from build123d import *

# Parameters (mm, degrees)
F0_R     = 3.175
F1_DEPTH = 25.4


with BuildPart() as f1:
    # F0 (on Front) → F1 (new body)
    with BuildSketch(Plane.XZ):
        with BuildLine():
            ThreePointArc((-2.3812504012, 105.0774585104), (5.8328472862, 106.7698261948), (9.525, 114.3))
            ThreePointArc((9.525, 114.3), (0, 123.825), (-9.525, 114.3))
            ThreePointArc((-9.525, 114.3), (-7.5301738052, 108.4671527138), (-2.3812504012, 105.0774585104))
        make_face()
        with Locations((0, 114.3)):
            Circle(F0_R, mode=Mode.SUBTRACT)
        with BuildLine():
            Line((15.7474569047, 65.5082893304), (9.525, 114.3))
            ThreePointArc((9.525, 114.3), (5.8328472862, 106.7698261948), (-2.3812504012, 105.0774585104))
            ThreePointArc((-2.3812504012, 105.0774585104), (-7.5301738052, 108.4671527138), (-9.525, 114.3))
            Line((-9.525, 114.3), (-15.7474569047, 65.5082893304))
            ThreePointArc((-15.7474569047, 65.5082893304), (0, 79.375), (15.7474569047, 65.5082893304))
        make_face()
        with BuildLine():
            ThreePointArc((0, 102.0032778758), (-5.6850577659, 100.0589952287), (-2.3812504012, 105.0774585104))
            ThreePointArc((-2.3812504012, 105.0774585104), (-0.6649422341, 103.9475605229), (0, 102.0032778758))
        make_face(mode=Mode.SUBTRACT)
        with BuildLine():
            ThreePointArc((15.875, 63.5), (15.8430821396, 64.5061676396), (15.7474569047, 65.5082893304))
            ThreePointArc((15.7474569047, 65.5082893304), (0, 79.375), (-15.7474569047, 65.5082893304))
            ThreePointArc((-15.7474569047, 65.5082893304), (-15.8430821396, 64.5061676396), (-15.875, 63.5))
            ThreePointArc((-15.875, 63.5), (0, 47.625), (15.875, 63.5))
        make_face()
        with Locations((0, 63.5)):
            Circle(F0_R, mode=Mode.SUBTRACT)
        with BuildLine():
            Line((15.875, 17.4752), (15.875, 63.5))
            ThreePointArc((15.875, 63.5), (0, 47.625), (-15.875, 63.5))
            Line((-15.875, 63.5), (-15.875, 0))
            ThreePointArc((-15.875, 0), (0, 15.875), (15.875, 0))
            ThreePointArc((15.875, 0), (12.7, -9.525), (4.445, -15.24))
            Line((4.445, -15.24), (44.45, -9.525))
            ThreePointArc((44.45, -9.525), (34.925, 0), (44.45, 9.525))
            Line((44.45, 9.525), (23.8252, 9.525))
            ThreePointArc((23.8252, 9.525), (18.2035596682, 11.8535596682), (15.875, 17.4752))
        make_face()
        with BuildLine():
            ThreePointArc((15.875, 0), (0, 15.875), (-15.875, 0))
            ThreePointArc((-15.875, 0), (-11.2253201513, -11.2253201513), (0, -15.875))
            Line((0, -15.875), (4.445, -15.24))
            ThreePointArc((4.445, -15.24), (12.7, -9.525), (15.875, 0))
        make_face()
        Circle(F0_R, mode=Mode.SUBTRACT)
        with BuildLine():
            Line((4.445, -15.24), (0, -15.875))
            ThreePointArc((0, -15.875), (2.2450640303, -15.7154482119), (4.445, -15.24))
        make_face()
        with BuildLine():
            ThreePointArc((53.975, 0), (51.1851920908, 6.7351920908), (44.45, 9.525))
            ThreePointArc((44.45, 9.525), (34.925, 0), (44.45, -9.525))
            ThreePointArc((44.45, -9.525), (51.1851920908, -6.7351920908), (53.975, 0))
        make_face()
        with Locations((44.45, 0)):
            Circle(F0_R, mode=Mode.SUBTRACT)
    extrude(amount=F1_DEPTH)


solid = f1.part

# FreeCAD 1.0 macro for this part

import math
import FreeCAD as App
import Part
import Sketcher
from FreeCAD import Vector
Q = App.Units.Quantity

doc = App.newDocument("Part")
body = doc.addObject("PartDesign::Body", "Body")

# Sketch on XZ plane
sketch1 = body.newObject("Sketcher::SketchObject", "Sketch")
sketch1.AttachmentSupport = (doc.getObject("XZ_Plane"), [""])
sketch1.MapMode = "FlatFace"
sketch1.addGeometry(Part.ArcOfCircle(Part.Circle(Vector(0, 114.3, 0), Vector(0, 0, 1), 9.5), math.radians(0), math.radians(180)), False)
sketch1.addGeometry(Part.LineSegment(Vector(-9.5, 114.3, 0), Vector(-15.7, 65.5, 0)), False)
sketch1.addGeometry(Part.ArcOfCircle(Part.Circle(Vector(0, 63.5, 0), Vector(0, 0, 1), 15.9), math.radians(172.73), math.radians(180)), False)
sketch1.addGeometry(Part.LineSegment(Vector(-15.9, 63.5, 0), Vector(-15.9, 0, 0)), False)
sketch1.addGeometry(Part.ArcOfCircle(Part.Circle(Vector(0, 0, 0), Vector(0, 0, 1), 15.9), math.radians(180), math.radians(270)), False)
sketch1.addGeometry(Part.ArcOfCircle(Part.Circle(Vector(0, 0, 0), Vector(0, 0, 1), 15.9), math.radians(-90), math.radians(-73.74)), False)
sketch1.addGeometry(Part.LineSegment(Vector(4.4, -15.2, 0), Vector(44.5, -9.5, 0)), False)
sketch1.addGeometry(Part.ArcOfCircle(Part.Circle(Vector(44.5, 0, 0), Vector(0, 0, 1), 9.5), math.radians(-90), math.radians(90)), False)
sketch1.addGeometry(Part.LineSegment(Vector(44.5, 9.5, 0), Vector(23.8, 9.5, 0)), False)
sketch1.addGeometry(Part.ArcOfCircle(Part.Circle(Vector(23.8, 17.5, 0), Vector(0, 0, 1), 8), math.radians(180), math.radians(270)), False)
sketch1.addGeometry(Part.LineSegment(Vector(15.9, 17.5, 0), Vector(15.9, 63.5, 0)), False)
sketch1.addGeometry(Part.ArcOfCircle(Part.Circle(Vector(0, 63.5, 0), Vector(0, 0, 1), 15.9), math.radians(0), math.radians(7.27)), False)
sketch1.addGeometry(Part.LineSegment(Vector(15.7, 65.5, 0), Vector(9.5, 114.3, 0)), False)
sketch1.addGeometry(Part.Circle(Vector(0, 0, 0), Vector(0, 0, 1), 3.2), False)
sketch1.addGeometry(Part.Circle(Vector(44.5, 0, 0), Vector(0, 0, 1), 3.2), False)
sketch1.addGeometry(Part.Circle(Vector(0, 63.5, 0), Vector(0, 0, 1), 3.2), False)
sketch1.addGeometry(Part.ArcOfCircle(Part.Circle(Vector(-3.2, 102, 0), Vector(0, 0, 1), 3.2), math.radians(0), math.radians(76)), False)
sketch1.addGeometry(Part.ArcOfCircle(Part.Circle(Vector(-3.2, 102, 0), Vector(0, 0, 1), 3.2), math.radians(76), math.radians(360)), False)
sketch1.addGeometry(Part.Circle(Vector(0, 114.3, 0), Vector(0, 0, 1), 3.2), False)
sketch1.addConstraint(Sketcher.Constraint("Coincident", 0, 2, 1, 1))
sketch1.addConstraint(Sketcher.Constraint("Tangent", 1, 2, 2, 1))
sketch1.addConstraint(Sketcher.Constraint("Tangent", 2, 2, 3, 1))
sketch1.addConstraint(Sketcher.Constraint("Tangent", 3, 2, 4, 1))
sketch1.addConstraint(Sketcher.Constraint("Tangent", 4, 2, 5, 1))
sketch1.addConstraint(Sketcher.Constraint("Coincident", 5, 2, 6, 1))
sketch1.addConstraint(Sketcher.Constraint("Coincident", 6, 2, 7, 1))
sketch1.addConstraint(Sketcher.Constraint("Tangent", 7, 2, 8, 1))
sketch1.addConstraint(Sketcher.Constraint("Tangent", 8, 2, 9, 2))
sketch1.addConstraint(Sketcher.Constraint("Tangent", 9, 1, 10, 1))
sketch1.addConstraint(Sketcher.Constraint("Tangent", 10, 2, 11, 1))
sketch1.addConstraint(Sketcher.Constraint("Tangent", 11, 2, 12, 1))
sketch1.addConstraint(Sketcher.Constraint("Coincident", 12, 2, 0, 1))
sketch1.addConstraint(Sketcher.Constraint("Tangent", 16, 1, 17, 2))
sketch1.addConstraint(Sketcher.Constraint("Coincident", 17, 1, 16, 2))
sketch1.addConstraint(Sketcher.Constraint("Vertical", 3))
sketch1.addConstraint(Sketcher.Constraint("Horizontal", 8))
sketch1.addConstraint(Sketcher.Constraint("Vertical", 10))
sketch1.addConstraint(Sketcher.Constraint("Coincident", 4, 3, -1, 1))
sketch1.addConstraint(Sketcher.Constraint("Coincident", 13, 3, -1, 1))
sketch1.addConstraint(Sketcher.Constraint("Coincident", 11, 3, 2, 3))
sketch1.addConstraint(Sketcher.Constraint("Coincident", 14, 3, 7, 3))
sketch1.addConstraint(Sketcher.Constraint("Coincident", 15, 3, 2, 3))
sketch1.addConstraint(Sketcher.Constraint("Coincident", 18, 3, 0, 3))
sketch1.addConstraint(Sketcher.Constraint("Equal", 2, 4))
sketch1.addConstraint(Sketcher.Constraint("Equal", 4, 5))
sketch1.addConstraint(Sketcher.Constraint("Equal", 0, 7))
sketch1.addConstraint(Sketcher.Constraint("Equal", 5, 11))
sketch1.addConstraint(Sketcher.Constraint("Equal", 13, 14))
sketch1.addConstraint(Sketcher.Constraint("Equal", 14, 15))
sketch1.addConstraint(Sketcher.Constraint("Equal", 15, 16))
sketch1.addConstraint(Sketcher.Constraint("Equal", 17, 18))
sketch1.addConstraint(Sketcher.Constraint("Symmetric", 0, 2, 12, 2, -2))
sketch1.addConstraint(Sketcher.Constraint("Symmetric", 6, 2, 7, 2, -1))
sketch1.addConstraint(Sketcher.Constraint("PointOnObject", 4, 2, -2))
sketch1.addConstraint(Sketcher.Constraint("PointOnObject", 16, 1, -2))
sketch1.addConstraint(Sketcher.Constraint("Horizontal", 18, 3, 0, 2))
sketch1.addConstraint(Sketcher.Constraint("Horizontal", 17, 3, 16, 1))
sketch1.addConstraint(Sketcher.Constraint("Diameter", 13, Q("0.25 in")))
sketch1.addConstraint(Sketcher.Constraint("DistanceY", 3, 2, 3, 1, Q("2.5 in")))
sketch1.addConstraint(Sketcher.Constraint("Radius", 0, Q("0.375 in")))
sketch1.addConstraint(Sketcher.Constraint("Radius", 2, Q("0.625 in")))
sketch1.addConstraint(Sketcher.Constraint("Radius", 9, Q("0.313 in")))
sketch1.addConstraint(Sketcher.Constraint("DistanceY", 2, 3, 0, 3, Q("2 in")))
sketch1.addConstraint(Sketcher.Constraint("DistanceY", 5, 2, -1, 1, Q("0.6 in")))
sketch1.addConstraint(Sketcher.Constraint("DistanceX", 8, 2, 8, 1, Q("0.812 in")))
sketch1.addConstraint(Sketcher.Constraint("DistanceX", 17, 1, -1, 1, Q("0.09375 in")))
sketch1.addConstraint(Sketcher.Constraint("DistanceY", -1, 1, 17, 1, Q("105.077459 mm")))
pad1 = body.newObject("PartDesign::Pad", "Pad")
pad1.Profile = sketch1
pad1.Length = Q("1 in")

doc.recompute()
